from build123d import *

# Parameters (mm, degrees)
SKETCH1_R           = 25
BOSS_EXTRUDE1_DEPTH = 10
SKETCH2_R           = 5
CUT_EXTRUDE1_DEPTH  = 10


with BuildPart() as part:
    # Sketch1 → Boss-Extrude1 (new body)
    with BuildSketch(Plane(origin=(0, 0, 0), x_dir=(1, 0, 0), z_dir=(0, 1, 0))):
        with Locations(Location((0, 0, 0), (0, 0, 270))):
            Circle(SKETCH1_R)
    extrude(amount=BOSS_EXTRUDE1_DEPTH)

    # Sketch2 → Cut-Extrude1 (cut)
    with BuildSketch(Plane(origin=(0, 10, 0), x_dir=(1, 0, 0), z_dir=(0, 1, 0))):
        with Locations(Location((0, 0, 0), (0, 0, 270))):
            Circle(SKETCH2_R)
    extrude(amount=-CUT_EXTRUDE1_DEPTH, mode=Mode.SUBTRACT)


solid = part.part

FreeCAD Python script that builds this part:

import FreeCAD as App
import Part
import Sketcher

V = App.Vector

doc = App.newDocument("Part")
params = doc.addObject("Spreadsheet::Sheet", "Params")
for row, (alias, value) in enumerate([
    ("sketch1_diameter", "50 mm"),
    ("pad1_length", "10 mm"),
    ("sketch2_diameter", "10 mm"),
    ("pocket1_length", "10 mm"),
], start=1):
    params.set(f"A{row}", alias)
    params.set(f"B{row}", "=" + value)
    params.setAlias(f"B{row}", alias)

body = doc.addObject("PartDesign::Body", "Body")

# Sketch on XZ plane
sketch1 = body.newObject("Sketcher::SketchObject", "Sketch")
sketch1.AttachmentSupport = (doc.getObject("XZ_Plane"), [""])
sketch1.MapMode = "FlatFace"
sketch1.addGeometry(Part.Circle(V(0, 0, 0), V(0, 0, 1), 25), False)
sketch1.addConstraint([
    Sketcher.Constraint("Coincident", 0, 3, -1, 1),
    Sketcher.Constraint("Diameter", 0, 50.0),
])
sketch1.setExpression("Constraints[1]", "Params.sketch1_diameter")
pad1 = body.newObject("PartDesign::Pad", "Pad")
pad1.Profile = sketch1
pad1.setExpression("Length", "Params.pad1_length")
pad1.Reversed = True

# Sketch on XZ plane
sketch2 = body.newObject("Sketcher::SketchObject", "Sketch001")
sketch2.AttachmentSupport = (doc.getObject("XZ_Plane"), [""])
sketch2.MapMode = "FlatFace"
sketch2.AttachmentOffset = App.Placement(V(0, 0, -10), App.Rotation())
sketch2.addGeometry(Part.Circle(V(0, 0, 0), V(0, 0, 1), 5), False)
sketch2.addConstraint([
    Sketcher.Constraint("Coincident", 0, 3, -1, 1),
    Sketcher.Constraint("Diameter", 0, 10.0),
])
sketch2.setExpression("Constraints[1]", "Params.sketch2_diameter")
pocket1 = body.newObject("PartDesign::Pocket", "Pocket")
pocket1.Profile = sketch2
pocket1.setExpression("Length", "Params.pocket1_length")
pocket1.Reversed = True

doc.recompute()
